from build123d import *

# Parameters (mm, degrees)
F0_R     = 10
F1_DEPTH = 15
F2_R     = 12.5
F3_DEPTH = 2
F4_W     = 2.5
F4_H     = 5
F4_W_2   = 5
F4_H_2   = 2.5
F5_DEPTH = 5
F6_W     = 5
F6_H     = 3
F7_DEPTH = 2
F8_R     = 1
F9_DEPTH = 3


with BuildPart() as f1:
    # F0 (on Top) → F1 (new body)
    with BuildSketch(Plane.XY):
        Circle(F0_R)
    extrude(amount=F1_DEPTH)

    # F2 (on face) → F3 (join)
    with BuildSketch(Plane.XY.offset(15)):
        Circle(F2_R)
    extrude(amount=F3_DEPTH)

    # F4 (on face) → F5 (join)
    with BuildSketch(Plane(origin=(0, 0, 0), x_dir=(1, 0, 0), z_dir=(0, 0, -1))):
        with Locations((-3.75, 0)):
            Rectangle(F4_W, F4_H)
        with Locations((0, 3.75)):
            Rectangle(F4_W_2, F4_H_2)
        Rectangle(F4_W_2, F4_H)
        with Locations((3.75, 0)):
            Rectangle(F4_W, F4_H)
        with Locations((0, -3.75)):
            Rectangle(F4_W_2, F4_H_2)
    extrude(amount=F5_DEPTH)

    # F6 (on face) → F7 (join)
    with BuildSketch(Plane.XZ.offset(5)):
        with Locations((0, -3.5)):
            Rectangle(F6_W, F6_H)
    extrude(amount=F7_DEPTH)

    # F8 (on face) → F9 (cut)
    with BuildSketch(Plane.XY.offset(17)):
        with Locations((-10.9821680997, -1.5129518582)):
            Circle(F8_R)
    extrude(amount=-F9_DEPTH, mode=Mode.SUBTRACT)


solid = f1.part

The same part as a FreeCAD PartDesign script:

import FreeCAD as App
import Part
import Sketcher

doc = App.newDocument("Part")
params = doc.addObject("Spreadsheet::Sheet", "Params")
for row, (alias, value) in enumerate([
    ("sketch1_diameter", "20 mm"),
    ("pad1_length", "15 mm"),
    ("sketch2_diameter", "25 mm"),
    ("pad2_length", "2 mm"),
    ("sketch3_width", "5 mm"),
    ("sketch3_width2", "2.5 mm"),
    ("pad3_length", "5 mm"),
    ("sketch4_width", "5 mm"),
    ("sketch4_height", "3 mm"),
    ("pad4_length", "2 mm"),
    ("sketch5_diameter", "2 mm"),
    ("pocket1_length", "3 mm"),
], start=1):
    params.set(f"A{row}", alias)
    params.set(f"B{row}", "=" + value)
    params.setAlias(f"B{row}", alias)

body = doc.addObject("PartDesign::Body", "Body")

# Sketch on XY plane
sketch1 = body.newObject("Sketcher::SketchObject", "Sketch")
sketch1.AttachmentSupport = (doc.getObject("XY_Plane"), [""])
sketch1.MapMode = "FlatFace"
sketch1.addGeometry(Part.Circle(App.Vector(0, 0, 0), App.Vector(0, 0, 1), 10), False)
sketch1.addConstraint(Sketcher.Constraint("Coincident", 0, 3, -1, 1))
sketch1.addConstraint(Sketcher.Constraint("Diameter", 0, 20.0))
sketch1.setExpression("Constraints[1]", "Params.sketch1_diameter")
pad1 = body.newObject("PartDesign::Pad", "Pad")
pad1.Profile = sketch1
pad1.setExpression("Length", "Params.pad1_length")

# Sketch on XY plane
sketch2 = body.newObject("Sketcher::SketchObject", "Sketch001")
sketch2.AttachmentSupport = (doc.getObject("XY_Plane"), [""])
sketch2.MapMode = "FlatFace"
sketch2.AttachmentOffset = App.Placement(App.Vector(0, 0, 15), App.Rotation())
sketch2.addGeometry(Part.Circle(App.Vector(0, 0, 0), App.Vector(0, 0, 1), 12), False)
sketch2.addConstraint(Sketcher.Constraint("Coincident", 0, 3, -1, 1))
sketch2.addConstraint(Sketcher.Constraint("Diameter", 0, 25.0))
sketch2.setExpression("Constraints[1]", "Params.sketch2_diameter")
pad2 = body.newObject("PartDesign::Pad", "Pad001")
pad2.Profile = sketch2
pad2.setExpression("Length", "Params.pad2_length")

# Sketch on XY plane
sketch3 = body.newObject("Sketcher::SketchObject", "Sketch002")
sketch3.AttachmentSupport = (doc.getObject("XY_Plane"), [""])
sketch3.MapMode = "FlatFace"
sketch3.addGeometry(Part.LineSegment(App.Vector(-5, -2.5, 0), App.Vector(-5, 2.5, 0)), False)
sketch3.addGeometry(Part.LineSegment(App.Vector(-5, 2.5, 0), App.Vector(-2.5, 2.5, 0)), False)
sketch3.addGeometry(Part.LineSegment(App.Vector(-2.5, 2.5, 0), App.Vector(-2.5, 5, 0)), False)
sketch3.addGeometry(Part.LineSegment(App.Vector(-2.5, 5, 0), App.Vector(2.5, 5, 0)), False)
sketch3.addGeometry(Part.LineSegment(App.Vector(2.5, 5, 0), App.Vector(2.5, 2.5, 0)), False)
sketch3.addGeometry(Part.LineSegment(App.Vector(2.5, 2.5, 0), App.Vector(5, 2.5, 0)), False)
sketch3.addGeometry(Part.LineSegment(App.Vector(5, 2.5, 0), App.Vector(5, -2.5, 0)), False)
sketch3.addGeometry(Part.LineSegment(App.Vector(5, -2.5, 0), App.Vector(2.5, -2.5, 0)), False)
sketch3.addGeometry(Part.LineSegment(App.Vector(2.5, -2.5, 0), App.Vector(2.5, -5, 0)), False)
sketch3.addGeometry(Part.LineSegment(App.Vector(2.5, -5, 0), App.Vector(-2.5, -5, 0)), False)
sketch3.addGeometry(Part.LineSegment(App.Vector(-2.5, -5, 0), App.Vector(-2.5, -2.5, 0)), False)
sketch3.addGeometry(Part.LineSegment(App.Vector(-2.5, -2.5, 0), App.Vector(-5, -2.5, 0)), False)
sketch3.addConstraint(Sketcher.Constraint("Coincident", 0, 2, 1, 1))
sketch3.addConstraint(Sketcher.Constraint("Coincident", 1, 2, 2, 1))
sketch3.addConstraint(Sketcher.Constraint("Coincident", 2, 2, 3, 1))
sketch3.addConstraint(Sketcher.Constraint("Coincident", 3, 2, 4, 1))
sketch3.addConstraint(Sketcher.Constraint("Coincident", 4, 2, 5, 1))
sketch3.addConstraint(Sketcher.Constraint("Coincident", 5, 2, 6, 1))
sketch3.addConstraint(Sketcher.Constraint("Coincident", 6, 2, 7, 1))
sketch3.addConstraint(Sketcher.Constraint("Coincident", 7, 2, 8, 1))
sketch3.addConstraint(Sketcher.Constraint("Coincident", 8, 2, 9, 1))
sketch3.addConstraint(Sketcher.Constraint("Coincident", 9, 2, 10, 1))
sketch3.addConstraint(Sketcher.Constraint("Coincident", 10, 2, 11, 1))
sketch3.addConstraint(Sketcher.Constraint("Coincident", 11, 2, 0, 1))
sketch3.addConstraint(Sketcher.Constraint("Vertical", 0))
sketch3.addConstraint(Sketcher.Constraint("Horizontal", 1))
sketch3.addConstraint(Sketcher.Constraint("Vertical", 2))
sketch3.addConstraint(Sketcher.Constraint("Horizontal", 3))
sketch3.addConstraint(Sketcher.Constraint("Vertical", 4))
sketch3.addConstraint(Sketcher.Constraint("Horizontal", 5))
sketch3.addConstraint(Sketcher.Constraint("Vertical", 6))
sketch3.addConstraint(Sketcher.Constraint("Horizontal", 7))
sketch3.addConstraint(Sketcher.Constraint("Vertical", 8))
sketch3.addConstraint(Sketcher.Constraint("Horizontal", 9))
sketch3.addConstraint(Sketcher.Constraint("Vertical", 10))
sketch3.addConstraint(Sketcher.Constraint("Horizontal", 11))
sketch3.addConstraint(Sketcher.Constraint("Symmetric", 0, 2, 6, 2, -1, 1))
sketch3.addConstraint(Sketcher.Constraint("Symmetric", 2, 2, 8, 2, -1, 1))
sketch3.addConstraint(Sketcher.Constraint("Symmetric", 4, 2, 10, 2, -1, 1))
sketch3.addConstraint(Sketcher.Constraint("Symmetric", 1, 2, 4, 2, -2))
sketch3.addConstraint(Sketcher.Constraint("Equal", 9, 0))
sketch3.addConstraint(Sketcher.Constraint("Equal", 11, 2))
sketch3.addConstraint(Sketcher.Constraint("DistanceX", 3, 1, 3, 2, 5.0))
sketch3.addConstraint(Sketcher.Constraint("DistanceX", 1, 1, 1, 2, 2.5))
sketch3.setExpression("Constraints[30]", "Params.sketch3_width")
sketch3.setExpression("Constraints[31]", "Params.sketch3_width2")
pad3 = body.newObject("PartDesign::Pad", "Pad002")
pad3.Profile = sketch3
pad3.setExpression("Length", "Params.pad3_length")
pad3.Reversed = True

# Sketch on XZ plane
sketch4 = body.newObject("Sketcher::SketchObject", "Sketch003")
sketch4.AttachmentSupport = (doc.getObject("XZ_Plane"), [""])
sketch4.MapMode = "FlatFace"
sketch4.AttachmentOffset = App.Placement(App.Vector(0, 0, 5), App.Rotation())
sketch4.addGeometry(Part.LineSegment(App.Vector(-2.5, -2, 0), App.Vector(-2.5, -5, 0)), False)
sketch4.addGeometry(Part.LineSegment(App.Vector(-2.5, -5, 0), App.Vector(2.5, -5, 0)), False)
sketch4.addGeometry(Part.LineSegment(App.Vector(2.5, -5, 0), App.Vector(2.5, -2, 0)), False)
sketch4.addGeometry(Part.LineSegment(App.Vector(2.5, -2, 0), App.Vector(-2.5, -2, 0)), False)
sketch4.addConstraint(Sketcher.Constraint("Coincident", 0, 2, 1, 1))
sketch4.addConstraint(Sketcher.Constraint("Coincident", 1, 2, 2, 1))
sketch4.addConstraint(Sketcher.Constraint("Coincident", 2, 2, 3, 1))
sketch4.addConstraint(Sketcher.Constraint("Coincident", 3, 2, 0, 1))
sketch4.addConstraint(Sketcher.Constraint("Vertical", 0))
sketch4.addConstraint(Sketcher.Constraint("Horizontal", 1))
sketch4.addConstraint(Sketcher.Constraint("Vertical", 2))
sketch4.addConstraint(Sketcher.Constraint("Horizontal", 3))
sketch4.addConstraint(Sketcher.Constraint("DistanceX", 1, 1, 1, 2, 5.0))
sketch4.addConstraint(Sketcher.Constraint("DistanceY", 0, 2, 0, 1, 3.0))
sketch4.addConstraint(Sketcher.Constraint("DistanceY", 0, 2, -1, 1, 5.0))
sketch4.addConstraint(Sketcher.Constraint("DistanceX", 0, 2, -1, 1, 2.5))
sketch4.setExpression("Constraints[8]", "Params.sketch4_width")
sketch4.setExpression("Constraints[9]", "Params.sketch4_height")
pad4 = body.newObject("PartDesign::Pad", "Pad003")
pad4.Profile = sketch4
pad4.setExpression("Length", "Params.pad4_length")

# Sketch on XY plane
sketch5 = body.newObject("Sketcher::SketchObject", "Sketch004")
sketch5.AttachmentSupport = (doc.getObject("XY_Plane"), [""])
sketch5.MapMode = "FlatFace"
sketch5.AttachmentOffset = App.Placement(App.Vector(0, 0, 17), App.Rotation())
sketch5.addGeometry(Part.Circle(App.Vector(-11, -1.5, 0), App.Vector(0, 0, 1), 1), False)
sketch5.addConstraint(Sketcher.Constraint("Diameter", 0, 2.0))
sketch5.addConstraint(Sketcher.Constraint("DistanceX", 0, 3, -1, 1, 10.982168))
sketch5.addConstraint(Sketcher.Constraint("DistanceY", 0, 3, -1, 1, 1.512952))
sketch5.setExpression("Constraints[0]", "Params.sketch5_diameter")
pocket1 = body.newObject("PartDesign::Pocket", "Pocket")
pocket1.Profile = sketch5
pocket1.setExpression("Length", "Params.pocket1_length")

doc.recompute()
